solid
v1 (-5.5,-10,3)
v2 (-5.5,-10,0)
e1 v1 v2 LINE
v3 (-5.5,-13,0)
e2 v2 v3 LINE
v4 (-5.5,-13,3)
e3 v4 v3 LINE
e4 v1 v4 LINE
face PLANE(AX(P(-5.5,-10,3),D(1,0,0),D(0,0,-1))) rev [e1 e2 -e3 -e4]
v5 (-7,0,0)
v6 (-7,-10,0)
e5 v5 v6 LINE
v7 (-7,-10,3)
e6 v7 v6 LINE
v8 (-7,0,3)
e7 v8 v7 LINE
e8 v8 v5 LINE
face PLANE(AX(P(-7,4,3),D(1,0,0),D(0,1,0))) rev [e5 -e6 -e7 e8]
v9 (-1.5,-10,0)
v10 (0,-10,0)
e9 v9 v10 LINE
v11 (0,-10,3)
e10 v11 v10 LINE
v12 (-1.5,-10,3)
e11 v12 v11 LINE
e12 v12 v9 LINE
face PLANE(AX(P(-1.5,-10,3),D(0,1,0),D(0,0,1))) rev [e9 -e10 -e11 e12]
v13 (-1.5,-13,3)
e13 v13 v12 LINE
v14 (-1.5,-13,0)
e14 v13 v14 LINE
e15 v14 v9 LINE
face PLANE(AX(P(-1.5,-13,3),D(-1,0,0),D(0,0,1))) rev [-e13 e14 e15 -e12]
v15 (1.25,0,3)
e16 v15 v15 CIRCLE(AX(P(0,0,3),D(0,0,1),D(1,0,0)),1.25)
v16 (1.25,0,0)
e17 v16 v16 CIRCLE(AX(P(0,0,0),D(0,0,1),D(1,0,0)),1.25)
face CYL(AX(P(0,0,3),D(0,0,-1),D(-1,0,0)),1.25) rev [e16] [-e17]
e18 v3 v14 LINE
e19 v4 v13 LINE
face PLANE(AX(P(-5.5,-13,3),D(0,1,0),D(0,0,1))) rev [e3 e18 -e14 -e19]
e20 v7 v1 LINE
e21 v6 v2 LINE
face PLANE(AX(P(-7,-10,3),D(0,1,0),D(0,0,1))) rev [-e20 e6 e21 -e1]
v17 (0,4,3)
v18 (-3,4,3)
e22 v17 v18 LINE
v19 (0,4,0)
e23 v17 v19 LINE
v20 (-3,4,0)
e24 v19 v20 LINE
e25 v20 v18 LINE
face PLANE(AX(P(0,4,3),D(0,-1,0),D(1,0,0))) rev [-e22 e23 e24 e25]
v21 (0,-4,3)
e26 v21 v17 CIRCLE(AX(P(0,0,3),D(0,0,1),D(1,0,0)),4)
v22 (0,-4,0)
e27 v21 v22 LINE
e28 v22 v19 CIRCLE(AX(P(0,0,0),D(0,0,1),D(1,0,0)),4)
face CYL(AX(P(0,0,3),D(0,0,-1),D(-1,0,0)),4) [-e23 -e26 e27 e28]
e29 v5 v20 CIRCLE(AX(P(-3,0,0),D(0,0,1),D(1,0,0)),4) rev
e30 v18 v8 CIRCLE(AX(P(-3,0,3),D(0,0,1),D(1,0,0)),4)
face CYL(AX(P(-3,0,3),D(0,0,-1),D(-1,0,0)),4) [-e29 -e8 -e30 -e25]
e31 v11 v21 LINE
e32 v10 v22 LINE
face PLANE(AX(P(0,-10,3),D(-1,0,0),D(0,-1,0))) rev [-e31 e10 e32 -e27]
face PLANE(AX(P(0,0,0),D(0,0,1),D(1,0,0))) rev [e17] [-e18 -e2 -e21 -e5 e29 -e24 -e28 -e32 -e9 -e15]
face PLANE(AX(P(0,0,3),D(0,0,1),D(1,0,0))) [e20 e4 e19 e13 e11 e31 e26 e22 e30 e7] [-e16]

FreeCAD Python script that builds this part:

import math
import FreeCAD as App
import Part
import Sketcher
from FreeCAD import Vector
Q = App.Units.Quantity


def edges_at(feature, points):
    """Names of the edges that pass closest to the given points."""
    edges = feature.Shape.Edges
    near = lambda p: min(range(len(edges)), key=lambda i: edges[i].distToShape(Part.Vertex(*p))[0])
    return sorted({f"Edge{near(p) + 1}" for p in points})

doc = App.newDocument("Part")
body = doc.addObject("PartDesign::Body", "Body")

# Sketch on XY plane
sketch1 = doc.addObject("Sketcher::SketchObject", "Sketch")
body.addObject(sketch1)
sketch1.AttachmentSupport = (doc.XY_Plane, [""])
sketch1.MapMode = "FlatFace"
sketch1.addGeometry([
    Part.LineSegment(Vector(-7, 4, 0), Vector(-7, -10, 0)),  # 0
    Part.LineSegment(Vector(-7, -10, 0), Vector(-5.5, -10, 0)),  # 1
    Part.LineSegment(Vector(-5.5, -10, 0), Vector(-5.5, -13, 0)),  # 2
    Part.LineSegment(Vector(-5.5, -13, 0), Vector(-1.5, -13, 0)),  # 3
    Part.LineSegment(Vector(-1.5, -13, 0), Vector(-1.5, -10, 0)),  # 4
    Part.LineSegment(Vector(-1.5, -10, 0), Vector(0, -10, 0)),  # 5
    Part.LineSegment(Vector(0, -10, 0), Vector(0, -4, 0)),  # 6
    Part.ArcOfCircle(Part.Circle(Vector(0, 0, 0), Vector(0, 0, 1), 4), math.radians(-90), math.radians(90)),  # 7
    Part.LineSegment(Vector(0, 4, 0), Vector(-7, 4, 0)),  # 8
    Part.Circle(Vector(0, 0, 0), Vector(0, 0, 1), 1.2),  # 9
], False)
sketch1.addConstraint([
    Sketcher.Constraint("Coincident", 0, 2, 1, 1),
    Sketcher.Constraint("Coincident", 1, 2, 2, 1),
    Sketcher.Constraint("Coincident", 2, 2, 3, 1),
    Sketcher.Constraint("Coincident", 3, 2, 4, 1),
    Sketcher.Constraint("Coincident", 4, 2, 5, 1),
    Sketcher.Constraint("Coincident", 5, 2, 6, 1),
    Sketcher.Constraint("Coincident", 6, 2, 7, 1),
    Sketcher.Constraint("Tangent", 7, 2, 8, 1),
    Sketcher.Constraint("Coincident", 8, 2, 0, 1),
    Sketcher.Constraint("Vertical", 0),
    Sketcher.Constraint("Horizontal", 1),
    Sketcher.Constraint("Vertical", 2),
    Sketcher.Constraint("Horizontal", 3),
    Sketcher.Constraint("Vertical", 4),
    Sketcher.Constraint("Horizontal", 5),
    Sketcher.Constraint("Vertical", 6),
    Sketcher.Constraint("Horizontal", 8),
    Sketcher.Constraint("Coincident", 7, 3, -1, 1),
    Sketcher.Constraint("Coincident", 9, 3, -1, 1),
    Sketcher.Constraint("PointOnObject", 5, 2, -2),
    Sketcher.Constraint("Horizontal", 1, 2, 4, 2),
    Sketcher.Constraint("Equal", 1, 5),
    Sketcher.Constraint("Radius", 7, Q("4 mm")),
    Sketcher.Constraint("Diameter", 9, Q("2.5 mm")),
    Sketcher.Constraint("DistanceX", 3, 1, 3, 2, Q("4 mm")),
    Sketcher.Constraint("DistanceX", 8, 2, 8, 1, Q("7 mm")),
    Sketcher.Constraint("DistanceY", 0, 2, 0, 1, Q("14 mm")),
    Sketcher.Constraint("DistanceY", 2, 2, 2, 1, Q("3 mm")),
])
pad1 = doc.addObject("PartDesign::Pad", "Pad")
body.addObject(pad1)
pad1.Profile = sketch1
pad1.Length = 3
doc.recompute()

fillet = doc.addObject("PartDesign::Fillet", "Fillet")
body.addObject(fillet)
fillet.Base = (pad1, edges_at(pad1, [(-7, 4, 1.5)]))
fillet.Radius = 4

doc.recompute()
